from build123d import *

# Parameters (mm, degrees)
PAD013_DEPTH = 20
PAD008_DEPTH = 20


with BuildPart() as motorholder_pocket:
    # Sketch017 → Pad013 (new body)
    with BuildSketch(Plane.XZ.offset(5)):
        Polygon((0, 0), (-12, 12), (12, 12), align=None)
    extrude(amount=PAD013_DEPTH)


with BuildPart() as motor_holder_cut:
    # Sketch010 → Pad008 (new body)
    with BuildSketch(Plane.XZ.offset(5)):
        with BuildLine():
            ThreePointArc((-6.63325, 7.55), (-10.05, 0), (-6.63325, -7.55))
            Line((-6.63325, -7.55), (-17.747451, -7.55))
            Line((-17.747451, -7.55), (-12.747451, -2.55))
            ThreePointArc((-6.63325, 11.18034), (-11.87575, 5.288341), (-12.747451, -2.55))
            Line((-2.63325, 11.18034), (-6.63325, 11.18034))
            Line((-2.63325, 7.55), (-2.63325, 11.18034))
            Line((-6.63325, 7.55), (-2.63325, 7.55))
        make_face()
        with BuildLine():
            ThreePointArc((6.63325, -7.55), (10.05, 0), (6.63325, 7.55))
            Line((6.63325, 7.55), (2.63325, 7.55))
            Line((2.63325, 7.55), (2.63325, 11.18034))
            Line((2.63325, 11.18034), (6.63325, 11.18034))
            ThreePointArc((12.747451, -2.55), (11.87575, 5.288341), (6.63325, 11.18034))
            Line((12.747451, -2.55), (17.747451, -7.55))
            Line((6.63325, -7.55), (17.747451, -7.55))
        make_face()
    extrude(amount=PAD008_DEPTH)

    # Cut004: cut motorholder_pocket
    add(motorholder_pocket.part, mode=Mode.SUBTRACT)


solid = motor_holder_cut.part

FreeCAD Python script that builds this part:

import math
import FreeCAD as App
import Part
import Sketcher
from FreeCAD import Vector
Q = App.Units.Quantity


def add_polygon(sketch, points):
    """Adds a closed chain of lines whose ends are joined by coincident constraints."""
    first, n = sketch.GeometryCount, len(points)
    for a, b in zip(points, points[1:] + points[:1]):
        sketch.addGeometry(Part.LineSegment(App.Vector(*a, 0), App.Vector(*b, 0)), False)
    for i in range(n):
        sketch.addConstraint(Sketcher.Constraint("Coincident", first + i, 2, first + (i + 1) % n, 1))

doc = App.newDocument("Part")
params = doc.addObject("Spreadsheet::Sheet", "Params")
for row, (alias, value) in enumerate([
    ("sketch1_width", "24 mm"),
    ("pad1_length", "20 mm"),
    ("sketch2_width", "4 mm"),
    ("sketch2_radius", "10.050001 mm"),
    ("pad2_length", "20 mm"),
], start=1):
    params.set(f"A{row}", alias)
    params.set(f"B{row}", "=" + value)
    params.setAlias(f"B{row}", alias)

body = doc.addObject("PartDesign::Body", "Body")

sketch1 = doc.addObject("Sketcher::SketchObject", "Sketch")
body.addObject(sketch1)
sketch1.AttachmentSupport = (doc.XZ_Plane, [""])
sketch1.MapMode = "FlatFace"
sketch1.AttachmentOffset = App.Placement(Vector(0, 0, 5), App.Rotation())
add_polygon(sketch1, [(-12, 12), (0, 0), (12, 12)])
sketch1.addConstraint(Sketcher.Constraint("Horizontal", 2))
sketch1.addConstraint(Sketcher.Constraint("Coincident", 0, 2, -1, 1))
sketch1.addConstraint(Sketcher.Constraint("Perpendicular", 0, 1))
sketch1.addConstraint(Sketcher.Constraint("Equal", 0, 1))
sketch1.addConstraint(Sketcher.Constraint("DistanceX", 2, 2, 2, 1, Q("24 mm")))
sketch1.setExpression("Constraints[7]", "Params.sketch1_width")
pad1 = doc.addObject("PartDesign::Pad", "Pad")
body.addObject(pad1)
pad1.Profile = sketch1
pad1.setExpression("Length", "Params.pad1_length")
body2 = doc.addObject("PartDesign::Body", "Body001")
body2.AllowCompound = True

sketch2 = doc.addObject("Sketcher::SketchObject", "Sketch001")
body2.addObject(sketch2)
sketch2.AttachmentSupport = (doc.getObject("XZ_Plane001"), [""])
sketch2.MapMode = "FlatFace"
sketch2.AttachmentOffset = App.Placement(Vector(0, 0, 5), App.Rotation())
sketch2.addGeometry(Part.ArcOfCircle(Part.Circle(Vector(0, 0, 0), Vector(0, 0, 1), 10.1), math.radians(131), math.radians(229)), False)
sketch2.addGeometry(Part.LineSegment(Vector(-6.6, 7.5, 0), Vector(-2.6, 7.5, 0)), False)
sketch2.addGeometry(Part.LineSegment(Vector(-2.6, 7.5, 0), Vector(-2.6, 11.2, 0)), False)
sketch2.addGeometry(Part.LineSegment(Vector(-2.6, 11.2, 0), Vector(-6.6, 11.2, 0)), False)
sketch2.addGeometry(Part.ArcOfCircle(Part.Circle(Vector(0, 0, 0), Vector(0, 0, 1), 13), math.radians(121), math.radians(191)), False)
sketch2.addGeometry(Part.LineSegment(Vector(-12.7, -2.5, 0), Vector(-17.7, -7.5, 0)), False)
sketch2.addGeometry(Part.LineSegment(Vector(-17.7, -7.5, 0), Vector(-6.6, -7.5, 0)), False)
sketch2.addGeometry(Part.ArcOfCircle(Part.Circle(Vector(0, 0, 0), Vector(0, 0, 1), 10.1), math.radians(-49), math.radians(49)), False)
sketch2.addGeometry(Part.LineSegment(Vector(6.6, -7.5, 0), Vector(17.7, -7.5, 0)), False)
sketch2.addGeometry(Part.LineSegment(Vector(17.7, -7.5, 0), Vector(12.7, -2.5, 0)), False)
sketch2.addGeometry(Part.ArcOfCircle(Part.Circle(Vector(0, 0, 0), Vector(0, 0, 1), 13), math.radians(-11), math.radians(59)), False)
sketch2.addGeometry(Part.LineSegment(Vector(6.6, 11.2, 0), Vector(2.6, 11.2, 0)), False)
sketch2.addGeometry(Part.LineSegment(Vector(2.6, 11.2, 0), Vector(2.6, 7.5, 0)), False)
sketch2.addGeometry(Part.LineSegment(Vector(2.6, 7.5, 0), Vector(6.6, 7.5, 0)), False)
sketch2.addConstraint(Sketcher.Constraint("Coincident", 0, 1, 1, 1))
sketch2.addConstraint(Sketcher.Constraint("Coincident", 1, 2, 2, 1))
sketch2.addConstraint(Sketcher.Constraint("Coincident", 2, 2, 3, 1))
sketch2.addConstraint(Sketcher.Constraint("Coincident", 3, 2, 4, 1))
sketch2.addConstraint(Sketcher.Constraint("Coincident", 4, 2, 5, 1))
sketch2.addConstraint(Sketcher.Constraint("Coincident", 5, 2, 6, 1))
sketch2.addConstraint(Sketcher.Constraint("Coincident", 6, 2, 0, 2))
sketch2.addConstraint(Sketcher.Constraint("Coincident", 7, 1, 8, 1))
sketch2.addConstraint(Sketcher.Constraint("Coincident", 8, 2, 9, 1))
sketch2.addConstraint(Sketcher.Constraint("Coincident", 9, 2, 10, 1))
sketch2.addConstraint(Sketcher.Constraint("Coincident", 10, 2, 11, 1))
sketch2.addConstraint(Sketcher.Constraint("Coincident", 11, 2, 12, 1))
sketch2.addConstraint(Sketcher.Constraint("Coincident", 12, 2, 13, 1))
sketch2.addConstraint(Sketcher.Constraint("Coincident", 13, 2, 7, 2))
sketch2.addConstraint(Sketcher.Constraint("Horizontal", 1))
sketch2.addConstraint(Sketcher.Constraint("Vertical", 2))
sketch2.addConstraint(Sketcher.Constraint("Horizontal", 3))
sketch2.addConstraint(Sketcher.Constraint("Horizontal", 6))
sketch2.addConstraint(Sketcher.Constraint("Horizontal", 8))
sketch2.addConstraint(Sketcher.Constraint("Horizontal", 11))
sketch2.addConstraint(Sketcher.Constraint("Vertical", 12))
sketch2.addConstraint(Sketcher.Constraint("Horizontal", 13))
sketch2.addConstraint(Sketcher.Constraint("Coincident", 0, 3, -1, 1))
sketch2.addConstraint(Sketcher.Constraint("Coincident", 4, 3, -1, 1))
sketch2.addConstraint(Sketcher.Constraint("Coincident", 7, 3, -1, 1))
sketch2.addConstraint(Sketcher.Constraint("Coincident", 10, 3, -1, 1))
sketch2.addConstraint(Sketcher.Constraint("Equal", 0, 7))
sketch2.addConstraint(Sketcher.Constraint("Equal", 4, 10))
sketch2.addConstraint(Sketcher.Constraint("Symmetric", 5, 2, 8, 2, -2))
sketch2.addConstraint(Sketcher.Constraint("Symmetric", 2, 2, 11, 2, -2))
sketch2.addConstraint(Sketcher.Constraint("Perpendicular", 5, 9))
sketch2.addConstraint(Sketcher.Constraint("Horizontal", 4, 2, 9, 2))
sketch2.addConstraint(Sketcher.Constraint("Horizontal", 1, 2, 12, 2))
sketch2.addConstraint(Sketcher.Constraint("Vertical", 0, 1, 3, 2))
sketch2.addConstraint(Sketcher.Constraint("Vertical", 3, 2, 6, 2))
sketch2.addConstraint(Sketcher.Constraint("DistanceX", 1, 1, 1, 2, Q("4 mm")))
sketch2.addConstraint(Sketcher.Constraint("Radius", 0, Q("10.050001 mm")))
sketch2.addConstraint(Sketcher.Constraint("DistanceX", 5, 2, 4, 2, Q("5 mm")))
sketch2.addConstraint(Sketcher.Constraint("DistanceY", 4, 2, 0, 1, Q("10.1 mm")))
sketch2.addConstraint(Sketcher.Constraint("DistanceX", 6, 1, 6, 2, Q("11.114201 mm")))
sketch2.setExpression("Constraints[35]", "Params.sketch2_width")
sketch2.setExpression("Constraints[36]", "Params.sketch2_radius")
pad2 = doc.addObject("PartDesign::Pad", "Pad001")
body2.addObject(pad2)
pad2.Profile = sketch2
pad2.setExpression("Length", "Params.pad2_length")
doc.recompute()

boolean = doc.addObject("PartDesign::Boolean", "Boolean")
body2.addObject(boolean)
boolean.Type = "Cut"
boolean.addObjects([body])

doc.recompute()
